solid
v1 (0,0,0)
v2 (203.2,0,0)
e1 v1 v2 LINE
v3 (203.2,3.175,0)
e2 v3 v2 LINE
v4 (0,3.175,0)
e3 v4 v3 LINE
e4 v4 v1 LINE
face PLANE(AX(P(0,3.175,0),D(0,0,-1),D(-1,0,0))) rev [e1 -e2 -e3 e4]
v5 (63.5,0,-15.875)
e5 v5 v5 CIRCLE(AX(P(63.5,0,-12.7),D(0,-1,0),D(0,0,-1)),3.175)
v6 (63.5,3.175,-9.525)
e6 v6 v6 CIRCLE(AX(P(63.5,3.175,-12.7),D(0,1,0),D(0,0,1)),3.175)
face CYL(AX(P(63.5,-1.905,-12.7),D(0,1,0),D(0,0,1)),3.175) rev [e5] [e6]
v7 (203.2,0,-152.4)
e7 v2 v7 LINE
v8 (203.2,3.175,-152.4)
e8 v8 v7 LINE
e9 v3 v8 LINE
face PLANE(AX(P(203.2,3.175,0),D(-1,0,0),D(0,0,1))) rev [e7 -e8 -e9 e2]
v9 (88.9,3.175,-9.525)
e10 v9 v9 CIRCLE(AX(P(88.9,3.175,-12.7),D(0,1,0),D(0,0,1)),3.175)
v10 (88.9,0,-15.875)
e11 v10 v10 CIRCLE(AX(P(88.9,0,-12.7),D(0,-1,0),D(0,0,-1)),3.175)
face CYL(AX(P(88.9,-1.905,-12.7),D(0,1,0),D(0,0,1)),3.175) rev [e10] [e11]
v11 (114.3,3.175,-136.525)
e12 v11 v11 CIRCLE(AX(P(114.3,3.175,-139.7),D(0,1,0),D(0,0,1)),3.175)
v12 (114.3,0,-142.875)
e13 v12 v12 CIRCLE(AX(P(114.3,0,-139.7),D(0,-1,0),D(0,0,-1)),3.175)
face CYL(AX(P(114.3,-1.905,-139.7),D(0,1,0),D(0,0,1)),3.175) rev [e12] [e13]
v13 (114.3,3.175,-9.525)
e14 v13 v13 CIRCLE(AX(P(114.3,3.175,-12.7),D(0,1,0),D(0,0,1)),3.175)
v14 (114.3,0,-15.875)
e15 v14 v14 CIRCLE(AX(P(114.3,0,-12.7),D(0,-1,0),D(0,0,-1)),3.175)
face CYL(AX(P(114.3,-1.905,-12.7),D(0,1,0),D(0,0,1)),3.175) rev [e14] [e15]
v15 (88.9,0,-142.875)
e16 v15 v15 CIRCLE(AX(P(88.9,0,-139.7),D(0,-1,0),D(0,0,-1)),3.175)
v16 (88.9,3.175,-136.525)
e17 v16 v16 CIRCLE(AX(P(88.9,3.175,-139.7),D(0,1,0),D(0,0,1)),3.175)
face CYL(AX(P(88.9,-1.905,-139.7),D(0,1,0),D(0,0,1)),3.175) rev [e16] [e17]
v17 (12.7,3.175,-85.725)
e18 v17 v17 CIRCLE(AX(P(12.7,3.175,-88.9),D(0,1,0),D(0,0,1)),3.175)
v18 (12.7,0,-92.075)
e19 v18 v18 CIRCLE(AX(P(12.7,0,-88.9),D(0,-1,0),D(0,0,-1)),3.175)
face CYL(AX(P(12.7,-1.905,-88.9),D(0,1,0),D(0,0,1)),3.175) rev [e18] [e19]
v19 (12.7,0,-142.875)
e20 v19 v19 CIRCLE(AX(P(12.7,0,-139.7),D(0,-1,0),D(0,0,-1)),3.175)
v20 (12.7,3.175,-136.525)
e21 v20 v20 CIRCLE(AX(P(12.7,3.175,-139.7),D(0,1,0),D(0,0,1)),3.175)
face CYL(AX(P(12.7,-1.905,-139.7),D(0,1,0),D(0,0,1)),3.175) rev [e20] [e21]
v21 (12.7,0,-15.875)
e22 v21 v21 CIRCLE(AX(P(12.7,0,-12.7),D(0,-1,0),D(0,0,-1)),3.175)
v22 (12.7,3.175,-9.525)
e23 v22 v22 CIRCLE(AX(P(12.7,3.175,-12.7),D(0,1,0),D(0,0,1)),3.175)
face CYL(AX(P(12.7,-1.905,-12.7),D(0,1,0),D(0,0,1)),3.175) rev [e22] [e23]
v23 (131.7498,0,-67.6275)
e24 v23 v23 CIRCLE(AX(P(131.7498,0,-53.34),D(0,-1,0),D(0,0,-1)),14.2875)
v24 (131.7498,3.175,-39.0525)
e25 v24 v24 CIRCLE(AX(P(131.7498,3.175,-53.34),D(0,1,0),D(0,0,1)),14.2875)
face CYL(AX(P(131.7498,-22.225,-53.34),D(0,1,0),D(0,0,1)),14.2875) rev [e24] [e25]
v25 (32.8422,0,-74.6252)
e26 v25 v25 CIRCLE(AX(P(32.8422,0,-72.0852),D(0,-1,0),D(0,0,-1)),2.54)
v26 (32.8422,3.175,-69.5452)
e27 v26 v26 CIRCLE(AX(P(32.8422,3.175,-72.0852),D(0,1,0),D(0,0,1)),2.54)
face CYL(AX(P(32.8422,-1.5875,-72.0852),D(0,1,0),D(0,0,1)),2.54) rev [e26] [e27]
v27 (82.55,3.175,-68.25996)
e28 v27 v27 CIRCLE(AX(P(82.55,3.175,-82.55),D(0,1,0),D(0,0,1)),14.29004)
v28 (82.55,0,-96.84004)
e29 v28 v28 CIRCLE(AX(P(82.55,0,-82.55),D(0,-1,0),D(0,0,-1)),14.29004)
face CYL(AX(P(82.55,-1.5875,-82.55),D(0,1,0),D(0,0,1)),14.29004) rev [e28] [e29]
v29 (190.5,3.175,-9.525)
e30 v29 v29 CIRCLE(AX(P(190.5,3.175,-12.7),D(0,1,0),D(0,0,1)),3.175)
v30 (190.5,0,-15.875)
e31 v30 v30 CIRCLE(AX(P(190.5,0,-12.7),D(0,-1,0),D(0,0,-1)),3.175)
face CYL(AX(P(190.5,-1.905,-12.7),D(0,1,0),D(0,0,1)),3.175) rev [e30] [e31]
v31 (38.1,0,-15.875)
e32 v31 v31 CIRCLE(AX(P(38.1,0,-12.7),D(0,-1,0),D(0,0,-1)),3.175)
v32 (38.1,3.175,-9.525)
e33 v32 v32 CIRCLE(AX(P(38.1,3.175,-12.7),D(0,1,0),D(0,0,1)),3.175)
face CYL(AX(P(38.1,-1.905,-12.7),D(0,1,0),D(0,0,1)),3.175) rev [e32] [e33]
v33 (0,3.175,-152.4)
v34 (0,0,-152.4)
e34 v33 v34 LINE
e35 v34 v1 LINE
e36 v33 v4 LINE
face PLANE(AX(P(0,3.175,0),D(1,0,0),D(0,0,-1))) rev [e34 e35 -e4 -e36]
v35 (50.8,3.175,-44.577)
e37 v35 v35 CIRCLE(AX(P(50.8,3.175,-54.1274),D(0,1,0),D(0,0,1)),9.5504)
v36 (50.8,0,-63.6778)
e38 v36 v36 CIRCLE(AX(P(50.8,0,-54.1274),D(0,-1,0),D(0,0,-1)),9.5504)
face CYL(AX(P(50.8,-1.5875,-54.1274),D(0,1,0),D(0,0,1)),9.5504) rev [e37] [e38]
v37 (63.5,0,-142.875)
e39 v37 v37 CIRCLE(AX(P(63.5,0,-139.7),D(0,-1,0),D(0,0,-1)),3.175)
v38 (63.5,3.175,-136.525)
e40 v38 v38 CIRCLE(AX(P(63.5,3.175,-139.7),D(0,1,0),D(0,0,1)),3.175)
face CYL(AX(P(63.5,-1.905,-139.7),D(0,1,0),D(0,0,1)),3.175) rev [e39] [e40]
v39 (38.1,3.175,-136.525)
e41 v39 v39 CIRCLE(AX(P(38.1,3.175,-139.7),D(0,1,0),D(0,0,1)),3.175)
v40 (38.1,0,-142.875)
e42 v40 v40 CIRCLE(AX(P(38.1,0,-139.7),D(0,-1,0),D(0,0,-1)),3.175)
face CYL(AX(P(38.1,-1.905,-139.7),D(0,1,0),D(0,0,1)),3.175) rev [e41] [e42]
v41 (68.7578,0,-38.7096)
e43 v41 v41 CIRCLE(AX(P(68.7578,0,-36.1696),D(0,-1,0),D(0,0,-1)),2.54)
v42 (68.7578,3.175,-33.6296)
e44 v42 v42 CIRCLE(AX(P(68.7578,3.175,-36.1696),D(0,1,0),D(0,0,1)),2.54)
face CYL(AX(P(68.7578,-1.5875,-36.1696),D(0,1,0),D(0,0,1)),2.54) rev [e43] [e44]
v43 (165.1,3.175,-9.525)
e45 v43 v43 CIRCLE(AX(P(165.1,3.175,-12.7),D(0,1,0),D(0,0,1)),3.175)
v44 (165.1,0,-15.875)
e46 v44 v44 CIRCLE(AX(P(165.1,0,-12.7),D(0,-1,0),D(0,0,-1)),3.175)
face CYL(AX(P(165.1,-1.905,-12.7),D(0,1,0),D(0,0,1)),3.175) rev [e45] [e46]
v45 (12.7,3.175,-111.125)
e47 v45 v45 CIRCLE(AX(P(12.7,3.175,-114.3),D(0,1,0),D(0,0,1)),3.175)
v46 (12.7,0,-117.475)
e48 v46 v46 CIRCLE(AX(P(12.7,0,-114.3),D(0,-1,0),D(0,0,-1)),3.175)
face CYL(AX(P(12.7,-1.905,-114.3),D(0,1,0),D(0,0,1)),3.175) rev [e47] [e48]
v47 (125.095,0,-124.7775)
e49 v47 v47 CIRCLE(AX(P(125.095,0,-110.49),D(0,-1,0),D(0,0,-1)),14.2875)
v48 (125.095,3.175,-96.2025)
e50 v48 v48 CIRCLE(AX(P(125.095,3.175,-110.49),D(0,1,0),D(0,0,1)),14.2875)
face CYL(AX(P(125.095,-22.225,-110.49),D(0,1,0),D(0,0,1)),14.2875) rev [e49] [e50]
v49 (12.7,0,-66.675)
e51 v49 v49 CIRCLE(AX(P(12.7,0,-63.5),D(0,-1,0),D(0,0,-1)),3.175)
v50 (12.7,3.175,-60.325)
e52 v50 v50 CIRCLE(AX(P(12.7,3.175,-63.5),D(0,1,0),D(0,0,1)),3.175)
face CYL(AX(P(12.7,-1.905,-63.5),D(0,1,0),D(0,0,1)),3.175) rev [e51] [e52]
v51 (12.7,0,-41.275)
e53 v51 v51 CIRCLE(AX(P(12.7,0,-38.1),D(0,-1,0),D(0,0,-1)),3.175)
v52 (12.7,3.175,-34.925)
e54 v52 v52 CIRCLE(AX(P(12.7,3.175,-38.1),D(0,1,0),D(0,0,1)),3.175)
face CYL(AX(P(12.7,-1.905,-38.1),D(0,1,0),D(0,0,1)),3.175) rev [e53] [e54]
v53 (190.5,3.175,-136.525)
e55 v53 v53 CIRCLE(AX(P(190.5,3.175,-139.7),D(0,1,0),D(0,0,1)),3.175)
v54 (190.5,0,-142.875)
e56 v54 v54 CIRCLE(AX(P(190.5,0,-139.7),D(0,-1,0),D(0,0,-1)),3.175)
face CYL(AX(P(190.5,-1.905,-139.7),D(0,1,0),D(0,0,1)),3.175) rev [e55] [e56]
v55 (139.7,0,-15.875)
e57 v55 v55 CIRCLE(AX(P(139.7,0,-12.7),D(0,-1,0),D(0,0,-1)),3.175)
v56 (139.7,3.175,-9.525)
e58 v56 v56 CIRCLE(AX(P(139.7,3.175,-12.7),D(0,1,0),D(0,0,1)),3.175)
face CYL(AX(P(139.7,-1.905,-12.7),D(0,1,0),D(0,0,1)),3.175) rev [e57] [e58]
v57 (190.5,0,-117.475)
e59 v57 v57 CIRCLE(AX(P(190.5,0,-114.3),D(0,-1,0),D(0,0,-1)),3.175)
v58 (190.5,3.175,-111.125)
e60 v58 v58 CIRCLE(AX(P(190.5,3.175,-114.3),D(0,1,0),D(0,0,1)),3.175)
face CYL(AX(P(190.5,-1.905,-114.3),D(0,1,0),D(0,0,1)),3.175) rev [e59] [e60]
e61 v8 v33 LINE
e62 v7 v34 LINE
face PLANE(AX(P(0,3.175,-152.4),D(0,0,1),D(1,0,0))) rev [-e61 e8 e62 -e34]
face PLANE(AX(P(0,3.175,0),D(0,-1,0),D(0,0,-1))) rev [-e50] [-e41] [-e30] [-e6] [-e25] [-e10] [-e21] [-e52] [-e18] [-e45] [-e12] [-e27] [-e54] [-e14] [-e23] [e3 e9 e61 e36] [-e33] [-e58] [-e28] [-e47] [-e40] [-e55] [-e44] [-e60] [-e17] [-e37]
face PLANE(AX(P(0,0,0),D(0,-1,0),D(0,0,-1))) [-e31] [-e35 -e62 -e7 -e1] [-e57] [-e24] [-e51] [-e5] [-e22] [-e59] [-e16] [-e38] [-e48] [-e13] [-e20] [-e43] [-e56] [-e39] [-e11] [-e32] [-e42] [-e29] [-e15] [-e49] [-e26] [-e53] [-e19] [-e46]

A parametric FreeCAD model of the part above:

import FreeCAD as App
import Part
import Sketcher

V = App.Vector
Q = App.Units.Quantity


def add_polygon(sketch, points):
    """Adds a closed chain of lines whose ends are joined by coincident constraints."""
    first, n = sketch.GeometryCount, len(points)
    for a, b in zip(points, points[1:] + points[:1]):
        sketch.addGeometry(Part.LineSegment(App.Vector(*a, 0), App.Vector(*b, 0)), False)
    for i in range(n):
        sketch.addConstraint(Sketcher.Constraint("Coincident", first + i, 2, first + (i + 1) % n, 1))

doc = App.newDocument("Part")
body = doc.addObject("PartDesign::Body", "Body")

# Sketch on XZ plane
sketch1 = body.newObject("Sketcher::SketchObject", "Sketch")
sketch1.AttachmentSupport = (doc.getObject("XZ_Plane"), [""])
sketch1.MapMode = "FlatFace"
add_polygon(sketch1, [(0, -152), (0, 0), (203, 0), (203, -152)])  # lines 0-3
sketch1.addConstraint([
    Sketcher.Constraint("Vertical", 0),
    Sketcher.Constraint("Horizontal", 1),
    Sketcher.Constraint("Vertical", 2),
    Sketcher.Constraint("Horizontal", 3),
    Sketcher.Constraint("Coincident", 0, 2, -1, 1),
    Sketcher.Constraint("DistanceX", 1, 1, 1, 2, Q("8 in")),
    Sketcher.Constraint("DistanceY", 0, 1, 0, 2, Q("6 in")),
])
pad1 = body.newObject("PartDesign::Pad", "Pad")
pad1.Profile = sketch1
pad1.Length = Q("0.125 in")
pad1.Reversed = True

# Sketch on XZ plane
sketch2 = body.newObject("Sketcher::SketchObject", "Sketch001")
sketch2.AttachmentSupport = (doc.getObject("XZ_Plane"), [""])
sketch2.MapMode = "FlatFace"
sketch2.AttachmentOffset = App.Placement(V(0, 0, -0.125 * 25.4), App.Rotation())
sketch2.addGeometry([
    Part.Circle(V(50.8, -54.1, 0), V(0, 0, 1), 9.6),
    Part.Circle(V(32.8, -72.1, 0), V(0, 0, 1), 2.5),
    Part.Circle(V(68.8, -36.2, 0), V(0, 0, 1), 2.5),
], False)
sketch2.addConstraint([
    Sketcher.Constraint("Equal", 1, 2),
    Sketcher.Constraint("Diameter", 1, Q("0.2 in")),
    Sketcher.Constraint("Diameter", 0, Q("0.752 in")),
    Sketcher.Constraint("DistanceX", -1, 1, 0, 3, Q("2 in")),
    Sketcher.Constraint("DistanceY", 0, 3, -1, 1, Q("2.131 in")),
    Sketcher.Constraint("DistanceX", -1, 1, 1, 3, Q("1.293 in")),
    Sketcher.Constraint("DistanceY", 1, 3, -1, 1, Q("2.838 in")),
    Sketcher.Constraint("DistanceX", -1, 1, 2, 3, Q("2.707 in")),
    Sketcher.Constraint("DistanceY", 2, 3, -1, 1, Q("1.424 in")),
])
pocket1 = body.newObject("PartDesign::Pocket", "Pocket")
pocket1.Profile = sketch2
pocket1.Length = Q("0.1875 in")
pocket1.Reversed = True

# Sketch on XZ plane
sketch3 = body.newObject("Sketcher::SketchObject", "Sketch002")
sketch3.AttachmentSupport = (doc.getObject("XZ_Plane"), [""])
sketch3.MapMode = "FlatFace"
sketch3.AttachmentOffset = App.Placement(V(0, 0, -0.125 * 25.4), App.Rotation())
sketch3.addGeometry(Part.Circle(V(83, -83, 0), V(0, 0, 1), 14), False)
sketch3.addConstraint([
    Sketcher.Constraint("Diameter", 0, Q("1.1252 in")),
    Sketcher.Constraint("DistanceX", -1, 1, 0, 3, Q("3.25 in")),
    Sketcher.Constraint("DistanceY", 0, 3, -1, 1, Q("3.25 in")),
])
pocket2 = body.newObject("PartDesign::Pocket", "Pocket001")
pocket2.Profile = sketch3
pocket2.Length = Q("0.1875 in")
pocket2.Reversed = True

# Sketch on XZ plane
sketch4 = body.newObject("Sketcher::SketchObject", "Sketch003")
sketch4.AttachmentSupport = (doc.getObject("XZ_Plane"), [""])
sketch4.MapMode = "FlatFace"
sketch4.AttachmentOffset = App.Placement(V(0, 0, -0.125 * 25.4), App.Rotation())
sketch4.addGeometry([
    Part.Circle(V(12.7, -12.7, 0), V(0, 0, 1), 3.2),  # 0
    Part.Circle(V(38.1, -12.7, 0), V(0, 0, 1), 3.2),  # 1
    Part.Circle(V(63.5, -12.7, 0), V(0, 0, 1), 3.2),  # 2
    Part.Circle(V(88.9, -12.7, 0), V(0, 0, 1), 3.2),  # 3
    Part.Circle(V(114.3, -12.7, 0), V(0, 0, 1), 3.2),  # 4
    Part.Circle(V(139.7, -12.7, 0), V(0, 0, 1), 3.2),  # 5
    Part.Circle(V(165.1, -12.7, 0), V(0, 0, 1), 3.2),  # 6
    Part.Circle(V(190.5, -12.7, 0), V(0, 0, 1), 3.2),  # 7
    Part.Circle(V(12.7, -38.1, 0), V(0, 0, 1), 3.2),  # 8
    Part.Circle(V(12.7, -63.5, 0), V(0, 0, 1), 3.2),  # 9
    Part.Circle(V(12.7, -88.9, 0), V(0, 0, 1), 3.2),  # 10
    Part.Circle(V(12.7, -114.3, 0), V(0, 0, 1), 3.2),  # 11
    Part.Circle(V(12.7, -139.7, 0), V(0, 0, 1), 3.2),  # 12
    Part.Circle(V(38.1, -139.7, 0), V(0, 0, 1), 3.2),  # 13
    Part.Circle(V(63.5, -139.7, 0), V(0, 0, 1), 3.2),  # 14
    Part.Circle(V(88.9, -139.7, 0), V(0, 0, 1), 3.2),  # 15
    Part.Circle(V(114.3, -139.7, 0), V(0, 0, 1), 3.2),  # 16
    Part.Circle(V(190.5, -114.3, 0), V(0, 0, 1), 3.2),  # 17
    Part.Circle(V(190.5, -139.7, 0), V(0, 0, 1), 3.2),  # 18
], False)
sketch4.addConstraint([
    Sketcher.Constraint("Equal", 0, 1),
    Sketcher.Constraint("Equal", 1, 2),
    Sketcher.Constraint("Equal", 2, 3),
    Sketcher.Constraint("Equal", 3, 4),
    Sketcher.Constraint("Equal", 4, 5),
    Sketcher.Constraint("Equal", 5, 6),
    Sketcher.Constraint("Equal", 6, 7),
    Sketcher.Constraint("Equal", 7, 8),
    Sketcher.Constraint("Equal", 8, 9),
    Sketcher.Constraint("Equal", 9, 10),
    Sketcher.Constraint("Equal", 10, 11),
    Sketcher.Constraint("Equal", 11, 12),
    Sketcher.Constraint("Equal", 12, 13),
    Sketcher.Constraint("Equal", 13, 14),
    Sketcher.Constraint("Equal", 14, 15),
    Sketcher.Constraint("Equal", 15, 16),
    Sketcher.Constraint("Equal", 16, 17),
    Sketcher.Constraint("Equal", 17, 18),
    Sketcher.Constraint("Horizontal", 0, 3, 1, 3),
    Sketcher.Constraint("Horizontal", 1, 3, 2, 3),
    Sketcher.Constraint("Horizontal", 2, 3, 3, 3),
    Sketcher.Constraint("Horizontal", 3, 3, 4, 3),
    Sketcher.Constraint("Horizontal", 4, 3, 5, 3),
    Sketcher.Constraint("Horizontal", 5, 3, 6, 3),
    Sketcher.Constraint("Horizontal", 6, 3, 7, 3),
    Sketcher.Constraint("Horizontal", 12, 3, 13, 3),
    Sketcher.Constraint("Horizontal", 13, 3, 14, 3),
    Sketcher.Constraint("Horizontal", 14, 3, 15, 3),
    Sketcher.Constraint("Horizontal", 15, 3, 16, 3),
    Sketcher.Constraint("Horizontal", 11, 3, 17, 3),
    Sketcher.Constraint("Horizontal", 16, 3, 18, 3),
    Sketcher.Constraint("Vertical", 0, 3, 8, 3),
    Sketcher.Constraint("Vertical", 8, 3, 9, 3),
    Sketcher.Constraint("Vertical", 9, 3, 10, 3),
    Sketcher.Constraint("Vertical", 10, 3, 11, 3),
    Sketcher.Constraint("Vertical", 11, 3, 12, 3),
    Sketcher.Constraint("Vertical", 1, 3, 13, 3),
    Sketcher.Constraint("Vertical", 2, 3, 14, 3),
    Sketcher.Constraint("Vertical", 3, 3, 15, 3),
    Sketcher.Constraint("Vertical", 4, 3, 16, 3),
    Sketcher.Constraint("Vertical", 7, 3, 17, 3),
    Sketcher.Constraint("Vertical", 17, 3, 18, 3),
    Sketcher.Constraint("Diameter", 0, Q("0.25 in")),
    Sketcher.Constraint("DistanceX", 0, 3, 1, 3, Q("1 in")),
    Sketcher.Constraint("DistanceX", 1, 3, 2, 3, Q("1 in")),
    Sketcher.Constraint("DistanceX", 2, 3, 3, 3, Q("1 in")),
    Sketcher.Constraint("DistanceX", 3, 3, 4, 3, Q("1 in")),
    Sketcher.Constraint("DistanceX", 4, 3, 5, 3, Q("1 in")),
    Sketcher.Constraint("DistanceX", 5, 3, 6, 3, Q("1 in")),
    Sketcher.Constraint("DistanceX", 6, 3, 7, 3, Q("1 in")),
    Sketcher.Constraint("DistanceY", 8, 3, 0, 3, Q("1 in")),
    Sketcher.Constraint("DistanceY", 9, 3, 8, 3, Q("1 in")),
    Sketcher.Constraint("DistanceY", 10, 3, 9, 3, Q("1 in")),
    Sketcher.Constraint("DistanceY", 11, 3, 10, 3, Q("1 in")),
    Sketcher.Constraint("DistanceY", 12, 3, 11, 3, Q("1 in")),
    Sketcher.Constraint("DistanceX", -1, 1, 0, 3, Q("0.5 in")),
    Sketcher.Constraint("DistanceY", 0, 3, -1, 1, Q("0.5 in")),
])
pocket3 = body.newObject("PartDesign::Pocket", "Pocket002")
pocket3.Profile = sketch4
pocket3.Length = Q("0.2 in")
pocket3.Reversed = True

# Sketch on XZ plane
sketch5 = body.newObject("Sketcher::SketchObject", "Sketch004")
sketch5.AttachmentSupport = (doc.getObject("XZ_Plane"), [""])
sketch5.MapMode = "FlatFace"
sketch5.AttachmentOffset = App.Placement(V(0, 0, -0.125 * 25.4), App.Rotation())
sketch5.addGeometry([
    Part.Circle(V(125, -110, 0), V(0, 0, 1), 14),
    Part.Circle(V(132, -53, 0), V(0, 0, 1), 14),
], False)
sketch5.addConstraint([
    Sketcher.Constraint("Equal", 0, 1),
    Sketcher.Constraint("Diameter", 0, Q("1.125 in")),
    Sketcher.Constraint("DistanceY", 1, 3, -1, 1, Q("2.1 in")),
    Sketcher.Constraint("DistanceY", 0, 3, -1, 1, Q("4.35 in")),
    Sketcher.Constraint("DistanceX", -1, 1, 0, 3, Q("4.925 in")),
    Sketcher.Constraint("DistanceX", -1, 1, 1, 3, Q("5.187 in")),
])
pocket4 = body.newObject("PartDesign::Pocket", "Pocket003")
pocket4.Profile = sketch5
pocket4.Length = Q("1 in")
pocket4.Reversed = True

doc.recompute()
